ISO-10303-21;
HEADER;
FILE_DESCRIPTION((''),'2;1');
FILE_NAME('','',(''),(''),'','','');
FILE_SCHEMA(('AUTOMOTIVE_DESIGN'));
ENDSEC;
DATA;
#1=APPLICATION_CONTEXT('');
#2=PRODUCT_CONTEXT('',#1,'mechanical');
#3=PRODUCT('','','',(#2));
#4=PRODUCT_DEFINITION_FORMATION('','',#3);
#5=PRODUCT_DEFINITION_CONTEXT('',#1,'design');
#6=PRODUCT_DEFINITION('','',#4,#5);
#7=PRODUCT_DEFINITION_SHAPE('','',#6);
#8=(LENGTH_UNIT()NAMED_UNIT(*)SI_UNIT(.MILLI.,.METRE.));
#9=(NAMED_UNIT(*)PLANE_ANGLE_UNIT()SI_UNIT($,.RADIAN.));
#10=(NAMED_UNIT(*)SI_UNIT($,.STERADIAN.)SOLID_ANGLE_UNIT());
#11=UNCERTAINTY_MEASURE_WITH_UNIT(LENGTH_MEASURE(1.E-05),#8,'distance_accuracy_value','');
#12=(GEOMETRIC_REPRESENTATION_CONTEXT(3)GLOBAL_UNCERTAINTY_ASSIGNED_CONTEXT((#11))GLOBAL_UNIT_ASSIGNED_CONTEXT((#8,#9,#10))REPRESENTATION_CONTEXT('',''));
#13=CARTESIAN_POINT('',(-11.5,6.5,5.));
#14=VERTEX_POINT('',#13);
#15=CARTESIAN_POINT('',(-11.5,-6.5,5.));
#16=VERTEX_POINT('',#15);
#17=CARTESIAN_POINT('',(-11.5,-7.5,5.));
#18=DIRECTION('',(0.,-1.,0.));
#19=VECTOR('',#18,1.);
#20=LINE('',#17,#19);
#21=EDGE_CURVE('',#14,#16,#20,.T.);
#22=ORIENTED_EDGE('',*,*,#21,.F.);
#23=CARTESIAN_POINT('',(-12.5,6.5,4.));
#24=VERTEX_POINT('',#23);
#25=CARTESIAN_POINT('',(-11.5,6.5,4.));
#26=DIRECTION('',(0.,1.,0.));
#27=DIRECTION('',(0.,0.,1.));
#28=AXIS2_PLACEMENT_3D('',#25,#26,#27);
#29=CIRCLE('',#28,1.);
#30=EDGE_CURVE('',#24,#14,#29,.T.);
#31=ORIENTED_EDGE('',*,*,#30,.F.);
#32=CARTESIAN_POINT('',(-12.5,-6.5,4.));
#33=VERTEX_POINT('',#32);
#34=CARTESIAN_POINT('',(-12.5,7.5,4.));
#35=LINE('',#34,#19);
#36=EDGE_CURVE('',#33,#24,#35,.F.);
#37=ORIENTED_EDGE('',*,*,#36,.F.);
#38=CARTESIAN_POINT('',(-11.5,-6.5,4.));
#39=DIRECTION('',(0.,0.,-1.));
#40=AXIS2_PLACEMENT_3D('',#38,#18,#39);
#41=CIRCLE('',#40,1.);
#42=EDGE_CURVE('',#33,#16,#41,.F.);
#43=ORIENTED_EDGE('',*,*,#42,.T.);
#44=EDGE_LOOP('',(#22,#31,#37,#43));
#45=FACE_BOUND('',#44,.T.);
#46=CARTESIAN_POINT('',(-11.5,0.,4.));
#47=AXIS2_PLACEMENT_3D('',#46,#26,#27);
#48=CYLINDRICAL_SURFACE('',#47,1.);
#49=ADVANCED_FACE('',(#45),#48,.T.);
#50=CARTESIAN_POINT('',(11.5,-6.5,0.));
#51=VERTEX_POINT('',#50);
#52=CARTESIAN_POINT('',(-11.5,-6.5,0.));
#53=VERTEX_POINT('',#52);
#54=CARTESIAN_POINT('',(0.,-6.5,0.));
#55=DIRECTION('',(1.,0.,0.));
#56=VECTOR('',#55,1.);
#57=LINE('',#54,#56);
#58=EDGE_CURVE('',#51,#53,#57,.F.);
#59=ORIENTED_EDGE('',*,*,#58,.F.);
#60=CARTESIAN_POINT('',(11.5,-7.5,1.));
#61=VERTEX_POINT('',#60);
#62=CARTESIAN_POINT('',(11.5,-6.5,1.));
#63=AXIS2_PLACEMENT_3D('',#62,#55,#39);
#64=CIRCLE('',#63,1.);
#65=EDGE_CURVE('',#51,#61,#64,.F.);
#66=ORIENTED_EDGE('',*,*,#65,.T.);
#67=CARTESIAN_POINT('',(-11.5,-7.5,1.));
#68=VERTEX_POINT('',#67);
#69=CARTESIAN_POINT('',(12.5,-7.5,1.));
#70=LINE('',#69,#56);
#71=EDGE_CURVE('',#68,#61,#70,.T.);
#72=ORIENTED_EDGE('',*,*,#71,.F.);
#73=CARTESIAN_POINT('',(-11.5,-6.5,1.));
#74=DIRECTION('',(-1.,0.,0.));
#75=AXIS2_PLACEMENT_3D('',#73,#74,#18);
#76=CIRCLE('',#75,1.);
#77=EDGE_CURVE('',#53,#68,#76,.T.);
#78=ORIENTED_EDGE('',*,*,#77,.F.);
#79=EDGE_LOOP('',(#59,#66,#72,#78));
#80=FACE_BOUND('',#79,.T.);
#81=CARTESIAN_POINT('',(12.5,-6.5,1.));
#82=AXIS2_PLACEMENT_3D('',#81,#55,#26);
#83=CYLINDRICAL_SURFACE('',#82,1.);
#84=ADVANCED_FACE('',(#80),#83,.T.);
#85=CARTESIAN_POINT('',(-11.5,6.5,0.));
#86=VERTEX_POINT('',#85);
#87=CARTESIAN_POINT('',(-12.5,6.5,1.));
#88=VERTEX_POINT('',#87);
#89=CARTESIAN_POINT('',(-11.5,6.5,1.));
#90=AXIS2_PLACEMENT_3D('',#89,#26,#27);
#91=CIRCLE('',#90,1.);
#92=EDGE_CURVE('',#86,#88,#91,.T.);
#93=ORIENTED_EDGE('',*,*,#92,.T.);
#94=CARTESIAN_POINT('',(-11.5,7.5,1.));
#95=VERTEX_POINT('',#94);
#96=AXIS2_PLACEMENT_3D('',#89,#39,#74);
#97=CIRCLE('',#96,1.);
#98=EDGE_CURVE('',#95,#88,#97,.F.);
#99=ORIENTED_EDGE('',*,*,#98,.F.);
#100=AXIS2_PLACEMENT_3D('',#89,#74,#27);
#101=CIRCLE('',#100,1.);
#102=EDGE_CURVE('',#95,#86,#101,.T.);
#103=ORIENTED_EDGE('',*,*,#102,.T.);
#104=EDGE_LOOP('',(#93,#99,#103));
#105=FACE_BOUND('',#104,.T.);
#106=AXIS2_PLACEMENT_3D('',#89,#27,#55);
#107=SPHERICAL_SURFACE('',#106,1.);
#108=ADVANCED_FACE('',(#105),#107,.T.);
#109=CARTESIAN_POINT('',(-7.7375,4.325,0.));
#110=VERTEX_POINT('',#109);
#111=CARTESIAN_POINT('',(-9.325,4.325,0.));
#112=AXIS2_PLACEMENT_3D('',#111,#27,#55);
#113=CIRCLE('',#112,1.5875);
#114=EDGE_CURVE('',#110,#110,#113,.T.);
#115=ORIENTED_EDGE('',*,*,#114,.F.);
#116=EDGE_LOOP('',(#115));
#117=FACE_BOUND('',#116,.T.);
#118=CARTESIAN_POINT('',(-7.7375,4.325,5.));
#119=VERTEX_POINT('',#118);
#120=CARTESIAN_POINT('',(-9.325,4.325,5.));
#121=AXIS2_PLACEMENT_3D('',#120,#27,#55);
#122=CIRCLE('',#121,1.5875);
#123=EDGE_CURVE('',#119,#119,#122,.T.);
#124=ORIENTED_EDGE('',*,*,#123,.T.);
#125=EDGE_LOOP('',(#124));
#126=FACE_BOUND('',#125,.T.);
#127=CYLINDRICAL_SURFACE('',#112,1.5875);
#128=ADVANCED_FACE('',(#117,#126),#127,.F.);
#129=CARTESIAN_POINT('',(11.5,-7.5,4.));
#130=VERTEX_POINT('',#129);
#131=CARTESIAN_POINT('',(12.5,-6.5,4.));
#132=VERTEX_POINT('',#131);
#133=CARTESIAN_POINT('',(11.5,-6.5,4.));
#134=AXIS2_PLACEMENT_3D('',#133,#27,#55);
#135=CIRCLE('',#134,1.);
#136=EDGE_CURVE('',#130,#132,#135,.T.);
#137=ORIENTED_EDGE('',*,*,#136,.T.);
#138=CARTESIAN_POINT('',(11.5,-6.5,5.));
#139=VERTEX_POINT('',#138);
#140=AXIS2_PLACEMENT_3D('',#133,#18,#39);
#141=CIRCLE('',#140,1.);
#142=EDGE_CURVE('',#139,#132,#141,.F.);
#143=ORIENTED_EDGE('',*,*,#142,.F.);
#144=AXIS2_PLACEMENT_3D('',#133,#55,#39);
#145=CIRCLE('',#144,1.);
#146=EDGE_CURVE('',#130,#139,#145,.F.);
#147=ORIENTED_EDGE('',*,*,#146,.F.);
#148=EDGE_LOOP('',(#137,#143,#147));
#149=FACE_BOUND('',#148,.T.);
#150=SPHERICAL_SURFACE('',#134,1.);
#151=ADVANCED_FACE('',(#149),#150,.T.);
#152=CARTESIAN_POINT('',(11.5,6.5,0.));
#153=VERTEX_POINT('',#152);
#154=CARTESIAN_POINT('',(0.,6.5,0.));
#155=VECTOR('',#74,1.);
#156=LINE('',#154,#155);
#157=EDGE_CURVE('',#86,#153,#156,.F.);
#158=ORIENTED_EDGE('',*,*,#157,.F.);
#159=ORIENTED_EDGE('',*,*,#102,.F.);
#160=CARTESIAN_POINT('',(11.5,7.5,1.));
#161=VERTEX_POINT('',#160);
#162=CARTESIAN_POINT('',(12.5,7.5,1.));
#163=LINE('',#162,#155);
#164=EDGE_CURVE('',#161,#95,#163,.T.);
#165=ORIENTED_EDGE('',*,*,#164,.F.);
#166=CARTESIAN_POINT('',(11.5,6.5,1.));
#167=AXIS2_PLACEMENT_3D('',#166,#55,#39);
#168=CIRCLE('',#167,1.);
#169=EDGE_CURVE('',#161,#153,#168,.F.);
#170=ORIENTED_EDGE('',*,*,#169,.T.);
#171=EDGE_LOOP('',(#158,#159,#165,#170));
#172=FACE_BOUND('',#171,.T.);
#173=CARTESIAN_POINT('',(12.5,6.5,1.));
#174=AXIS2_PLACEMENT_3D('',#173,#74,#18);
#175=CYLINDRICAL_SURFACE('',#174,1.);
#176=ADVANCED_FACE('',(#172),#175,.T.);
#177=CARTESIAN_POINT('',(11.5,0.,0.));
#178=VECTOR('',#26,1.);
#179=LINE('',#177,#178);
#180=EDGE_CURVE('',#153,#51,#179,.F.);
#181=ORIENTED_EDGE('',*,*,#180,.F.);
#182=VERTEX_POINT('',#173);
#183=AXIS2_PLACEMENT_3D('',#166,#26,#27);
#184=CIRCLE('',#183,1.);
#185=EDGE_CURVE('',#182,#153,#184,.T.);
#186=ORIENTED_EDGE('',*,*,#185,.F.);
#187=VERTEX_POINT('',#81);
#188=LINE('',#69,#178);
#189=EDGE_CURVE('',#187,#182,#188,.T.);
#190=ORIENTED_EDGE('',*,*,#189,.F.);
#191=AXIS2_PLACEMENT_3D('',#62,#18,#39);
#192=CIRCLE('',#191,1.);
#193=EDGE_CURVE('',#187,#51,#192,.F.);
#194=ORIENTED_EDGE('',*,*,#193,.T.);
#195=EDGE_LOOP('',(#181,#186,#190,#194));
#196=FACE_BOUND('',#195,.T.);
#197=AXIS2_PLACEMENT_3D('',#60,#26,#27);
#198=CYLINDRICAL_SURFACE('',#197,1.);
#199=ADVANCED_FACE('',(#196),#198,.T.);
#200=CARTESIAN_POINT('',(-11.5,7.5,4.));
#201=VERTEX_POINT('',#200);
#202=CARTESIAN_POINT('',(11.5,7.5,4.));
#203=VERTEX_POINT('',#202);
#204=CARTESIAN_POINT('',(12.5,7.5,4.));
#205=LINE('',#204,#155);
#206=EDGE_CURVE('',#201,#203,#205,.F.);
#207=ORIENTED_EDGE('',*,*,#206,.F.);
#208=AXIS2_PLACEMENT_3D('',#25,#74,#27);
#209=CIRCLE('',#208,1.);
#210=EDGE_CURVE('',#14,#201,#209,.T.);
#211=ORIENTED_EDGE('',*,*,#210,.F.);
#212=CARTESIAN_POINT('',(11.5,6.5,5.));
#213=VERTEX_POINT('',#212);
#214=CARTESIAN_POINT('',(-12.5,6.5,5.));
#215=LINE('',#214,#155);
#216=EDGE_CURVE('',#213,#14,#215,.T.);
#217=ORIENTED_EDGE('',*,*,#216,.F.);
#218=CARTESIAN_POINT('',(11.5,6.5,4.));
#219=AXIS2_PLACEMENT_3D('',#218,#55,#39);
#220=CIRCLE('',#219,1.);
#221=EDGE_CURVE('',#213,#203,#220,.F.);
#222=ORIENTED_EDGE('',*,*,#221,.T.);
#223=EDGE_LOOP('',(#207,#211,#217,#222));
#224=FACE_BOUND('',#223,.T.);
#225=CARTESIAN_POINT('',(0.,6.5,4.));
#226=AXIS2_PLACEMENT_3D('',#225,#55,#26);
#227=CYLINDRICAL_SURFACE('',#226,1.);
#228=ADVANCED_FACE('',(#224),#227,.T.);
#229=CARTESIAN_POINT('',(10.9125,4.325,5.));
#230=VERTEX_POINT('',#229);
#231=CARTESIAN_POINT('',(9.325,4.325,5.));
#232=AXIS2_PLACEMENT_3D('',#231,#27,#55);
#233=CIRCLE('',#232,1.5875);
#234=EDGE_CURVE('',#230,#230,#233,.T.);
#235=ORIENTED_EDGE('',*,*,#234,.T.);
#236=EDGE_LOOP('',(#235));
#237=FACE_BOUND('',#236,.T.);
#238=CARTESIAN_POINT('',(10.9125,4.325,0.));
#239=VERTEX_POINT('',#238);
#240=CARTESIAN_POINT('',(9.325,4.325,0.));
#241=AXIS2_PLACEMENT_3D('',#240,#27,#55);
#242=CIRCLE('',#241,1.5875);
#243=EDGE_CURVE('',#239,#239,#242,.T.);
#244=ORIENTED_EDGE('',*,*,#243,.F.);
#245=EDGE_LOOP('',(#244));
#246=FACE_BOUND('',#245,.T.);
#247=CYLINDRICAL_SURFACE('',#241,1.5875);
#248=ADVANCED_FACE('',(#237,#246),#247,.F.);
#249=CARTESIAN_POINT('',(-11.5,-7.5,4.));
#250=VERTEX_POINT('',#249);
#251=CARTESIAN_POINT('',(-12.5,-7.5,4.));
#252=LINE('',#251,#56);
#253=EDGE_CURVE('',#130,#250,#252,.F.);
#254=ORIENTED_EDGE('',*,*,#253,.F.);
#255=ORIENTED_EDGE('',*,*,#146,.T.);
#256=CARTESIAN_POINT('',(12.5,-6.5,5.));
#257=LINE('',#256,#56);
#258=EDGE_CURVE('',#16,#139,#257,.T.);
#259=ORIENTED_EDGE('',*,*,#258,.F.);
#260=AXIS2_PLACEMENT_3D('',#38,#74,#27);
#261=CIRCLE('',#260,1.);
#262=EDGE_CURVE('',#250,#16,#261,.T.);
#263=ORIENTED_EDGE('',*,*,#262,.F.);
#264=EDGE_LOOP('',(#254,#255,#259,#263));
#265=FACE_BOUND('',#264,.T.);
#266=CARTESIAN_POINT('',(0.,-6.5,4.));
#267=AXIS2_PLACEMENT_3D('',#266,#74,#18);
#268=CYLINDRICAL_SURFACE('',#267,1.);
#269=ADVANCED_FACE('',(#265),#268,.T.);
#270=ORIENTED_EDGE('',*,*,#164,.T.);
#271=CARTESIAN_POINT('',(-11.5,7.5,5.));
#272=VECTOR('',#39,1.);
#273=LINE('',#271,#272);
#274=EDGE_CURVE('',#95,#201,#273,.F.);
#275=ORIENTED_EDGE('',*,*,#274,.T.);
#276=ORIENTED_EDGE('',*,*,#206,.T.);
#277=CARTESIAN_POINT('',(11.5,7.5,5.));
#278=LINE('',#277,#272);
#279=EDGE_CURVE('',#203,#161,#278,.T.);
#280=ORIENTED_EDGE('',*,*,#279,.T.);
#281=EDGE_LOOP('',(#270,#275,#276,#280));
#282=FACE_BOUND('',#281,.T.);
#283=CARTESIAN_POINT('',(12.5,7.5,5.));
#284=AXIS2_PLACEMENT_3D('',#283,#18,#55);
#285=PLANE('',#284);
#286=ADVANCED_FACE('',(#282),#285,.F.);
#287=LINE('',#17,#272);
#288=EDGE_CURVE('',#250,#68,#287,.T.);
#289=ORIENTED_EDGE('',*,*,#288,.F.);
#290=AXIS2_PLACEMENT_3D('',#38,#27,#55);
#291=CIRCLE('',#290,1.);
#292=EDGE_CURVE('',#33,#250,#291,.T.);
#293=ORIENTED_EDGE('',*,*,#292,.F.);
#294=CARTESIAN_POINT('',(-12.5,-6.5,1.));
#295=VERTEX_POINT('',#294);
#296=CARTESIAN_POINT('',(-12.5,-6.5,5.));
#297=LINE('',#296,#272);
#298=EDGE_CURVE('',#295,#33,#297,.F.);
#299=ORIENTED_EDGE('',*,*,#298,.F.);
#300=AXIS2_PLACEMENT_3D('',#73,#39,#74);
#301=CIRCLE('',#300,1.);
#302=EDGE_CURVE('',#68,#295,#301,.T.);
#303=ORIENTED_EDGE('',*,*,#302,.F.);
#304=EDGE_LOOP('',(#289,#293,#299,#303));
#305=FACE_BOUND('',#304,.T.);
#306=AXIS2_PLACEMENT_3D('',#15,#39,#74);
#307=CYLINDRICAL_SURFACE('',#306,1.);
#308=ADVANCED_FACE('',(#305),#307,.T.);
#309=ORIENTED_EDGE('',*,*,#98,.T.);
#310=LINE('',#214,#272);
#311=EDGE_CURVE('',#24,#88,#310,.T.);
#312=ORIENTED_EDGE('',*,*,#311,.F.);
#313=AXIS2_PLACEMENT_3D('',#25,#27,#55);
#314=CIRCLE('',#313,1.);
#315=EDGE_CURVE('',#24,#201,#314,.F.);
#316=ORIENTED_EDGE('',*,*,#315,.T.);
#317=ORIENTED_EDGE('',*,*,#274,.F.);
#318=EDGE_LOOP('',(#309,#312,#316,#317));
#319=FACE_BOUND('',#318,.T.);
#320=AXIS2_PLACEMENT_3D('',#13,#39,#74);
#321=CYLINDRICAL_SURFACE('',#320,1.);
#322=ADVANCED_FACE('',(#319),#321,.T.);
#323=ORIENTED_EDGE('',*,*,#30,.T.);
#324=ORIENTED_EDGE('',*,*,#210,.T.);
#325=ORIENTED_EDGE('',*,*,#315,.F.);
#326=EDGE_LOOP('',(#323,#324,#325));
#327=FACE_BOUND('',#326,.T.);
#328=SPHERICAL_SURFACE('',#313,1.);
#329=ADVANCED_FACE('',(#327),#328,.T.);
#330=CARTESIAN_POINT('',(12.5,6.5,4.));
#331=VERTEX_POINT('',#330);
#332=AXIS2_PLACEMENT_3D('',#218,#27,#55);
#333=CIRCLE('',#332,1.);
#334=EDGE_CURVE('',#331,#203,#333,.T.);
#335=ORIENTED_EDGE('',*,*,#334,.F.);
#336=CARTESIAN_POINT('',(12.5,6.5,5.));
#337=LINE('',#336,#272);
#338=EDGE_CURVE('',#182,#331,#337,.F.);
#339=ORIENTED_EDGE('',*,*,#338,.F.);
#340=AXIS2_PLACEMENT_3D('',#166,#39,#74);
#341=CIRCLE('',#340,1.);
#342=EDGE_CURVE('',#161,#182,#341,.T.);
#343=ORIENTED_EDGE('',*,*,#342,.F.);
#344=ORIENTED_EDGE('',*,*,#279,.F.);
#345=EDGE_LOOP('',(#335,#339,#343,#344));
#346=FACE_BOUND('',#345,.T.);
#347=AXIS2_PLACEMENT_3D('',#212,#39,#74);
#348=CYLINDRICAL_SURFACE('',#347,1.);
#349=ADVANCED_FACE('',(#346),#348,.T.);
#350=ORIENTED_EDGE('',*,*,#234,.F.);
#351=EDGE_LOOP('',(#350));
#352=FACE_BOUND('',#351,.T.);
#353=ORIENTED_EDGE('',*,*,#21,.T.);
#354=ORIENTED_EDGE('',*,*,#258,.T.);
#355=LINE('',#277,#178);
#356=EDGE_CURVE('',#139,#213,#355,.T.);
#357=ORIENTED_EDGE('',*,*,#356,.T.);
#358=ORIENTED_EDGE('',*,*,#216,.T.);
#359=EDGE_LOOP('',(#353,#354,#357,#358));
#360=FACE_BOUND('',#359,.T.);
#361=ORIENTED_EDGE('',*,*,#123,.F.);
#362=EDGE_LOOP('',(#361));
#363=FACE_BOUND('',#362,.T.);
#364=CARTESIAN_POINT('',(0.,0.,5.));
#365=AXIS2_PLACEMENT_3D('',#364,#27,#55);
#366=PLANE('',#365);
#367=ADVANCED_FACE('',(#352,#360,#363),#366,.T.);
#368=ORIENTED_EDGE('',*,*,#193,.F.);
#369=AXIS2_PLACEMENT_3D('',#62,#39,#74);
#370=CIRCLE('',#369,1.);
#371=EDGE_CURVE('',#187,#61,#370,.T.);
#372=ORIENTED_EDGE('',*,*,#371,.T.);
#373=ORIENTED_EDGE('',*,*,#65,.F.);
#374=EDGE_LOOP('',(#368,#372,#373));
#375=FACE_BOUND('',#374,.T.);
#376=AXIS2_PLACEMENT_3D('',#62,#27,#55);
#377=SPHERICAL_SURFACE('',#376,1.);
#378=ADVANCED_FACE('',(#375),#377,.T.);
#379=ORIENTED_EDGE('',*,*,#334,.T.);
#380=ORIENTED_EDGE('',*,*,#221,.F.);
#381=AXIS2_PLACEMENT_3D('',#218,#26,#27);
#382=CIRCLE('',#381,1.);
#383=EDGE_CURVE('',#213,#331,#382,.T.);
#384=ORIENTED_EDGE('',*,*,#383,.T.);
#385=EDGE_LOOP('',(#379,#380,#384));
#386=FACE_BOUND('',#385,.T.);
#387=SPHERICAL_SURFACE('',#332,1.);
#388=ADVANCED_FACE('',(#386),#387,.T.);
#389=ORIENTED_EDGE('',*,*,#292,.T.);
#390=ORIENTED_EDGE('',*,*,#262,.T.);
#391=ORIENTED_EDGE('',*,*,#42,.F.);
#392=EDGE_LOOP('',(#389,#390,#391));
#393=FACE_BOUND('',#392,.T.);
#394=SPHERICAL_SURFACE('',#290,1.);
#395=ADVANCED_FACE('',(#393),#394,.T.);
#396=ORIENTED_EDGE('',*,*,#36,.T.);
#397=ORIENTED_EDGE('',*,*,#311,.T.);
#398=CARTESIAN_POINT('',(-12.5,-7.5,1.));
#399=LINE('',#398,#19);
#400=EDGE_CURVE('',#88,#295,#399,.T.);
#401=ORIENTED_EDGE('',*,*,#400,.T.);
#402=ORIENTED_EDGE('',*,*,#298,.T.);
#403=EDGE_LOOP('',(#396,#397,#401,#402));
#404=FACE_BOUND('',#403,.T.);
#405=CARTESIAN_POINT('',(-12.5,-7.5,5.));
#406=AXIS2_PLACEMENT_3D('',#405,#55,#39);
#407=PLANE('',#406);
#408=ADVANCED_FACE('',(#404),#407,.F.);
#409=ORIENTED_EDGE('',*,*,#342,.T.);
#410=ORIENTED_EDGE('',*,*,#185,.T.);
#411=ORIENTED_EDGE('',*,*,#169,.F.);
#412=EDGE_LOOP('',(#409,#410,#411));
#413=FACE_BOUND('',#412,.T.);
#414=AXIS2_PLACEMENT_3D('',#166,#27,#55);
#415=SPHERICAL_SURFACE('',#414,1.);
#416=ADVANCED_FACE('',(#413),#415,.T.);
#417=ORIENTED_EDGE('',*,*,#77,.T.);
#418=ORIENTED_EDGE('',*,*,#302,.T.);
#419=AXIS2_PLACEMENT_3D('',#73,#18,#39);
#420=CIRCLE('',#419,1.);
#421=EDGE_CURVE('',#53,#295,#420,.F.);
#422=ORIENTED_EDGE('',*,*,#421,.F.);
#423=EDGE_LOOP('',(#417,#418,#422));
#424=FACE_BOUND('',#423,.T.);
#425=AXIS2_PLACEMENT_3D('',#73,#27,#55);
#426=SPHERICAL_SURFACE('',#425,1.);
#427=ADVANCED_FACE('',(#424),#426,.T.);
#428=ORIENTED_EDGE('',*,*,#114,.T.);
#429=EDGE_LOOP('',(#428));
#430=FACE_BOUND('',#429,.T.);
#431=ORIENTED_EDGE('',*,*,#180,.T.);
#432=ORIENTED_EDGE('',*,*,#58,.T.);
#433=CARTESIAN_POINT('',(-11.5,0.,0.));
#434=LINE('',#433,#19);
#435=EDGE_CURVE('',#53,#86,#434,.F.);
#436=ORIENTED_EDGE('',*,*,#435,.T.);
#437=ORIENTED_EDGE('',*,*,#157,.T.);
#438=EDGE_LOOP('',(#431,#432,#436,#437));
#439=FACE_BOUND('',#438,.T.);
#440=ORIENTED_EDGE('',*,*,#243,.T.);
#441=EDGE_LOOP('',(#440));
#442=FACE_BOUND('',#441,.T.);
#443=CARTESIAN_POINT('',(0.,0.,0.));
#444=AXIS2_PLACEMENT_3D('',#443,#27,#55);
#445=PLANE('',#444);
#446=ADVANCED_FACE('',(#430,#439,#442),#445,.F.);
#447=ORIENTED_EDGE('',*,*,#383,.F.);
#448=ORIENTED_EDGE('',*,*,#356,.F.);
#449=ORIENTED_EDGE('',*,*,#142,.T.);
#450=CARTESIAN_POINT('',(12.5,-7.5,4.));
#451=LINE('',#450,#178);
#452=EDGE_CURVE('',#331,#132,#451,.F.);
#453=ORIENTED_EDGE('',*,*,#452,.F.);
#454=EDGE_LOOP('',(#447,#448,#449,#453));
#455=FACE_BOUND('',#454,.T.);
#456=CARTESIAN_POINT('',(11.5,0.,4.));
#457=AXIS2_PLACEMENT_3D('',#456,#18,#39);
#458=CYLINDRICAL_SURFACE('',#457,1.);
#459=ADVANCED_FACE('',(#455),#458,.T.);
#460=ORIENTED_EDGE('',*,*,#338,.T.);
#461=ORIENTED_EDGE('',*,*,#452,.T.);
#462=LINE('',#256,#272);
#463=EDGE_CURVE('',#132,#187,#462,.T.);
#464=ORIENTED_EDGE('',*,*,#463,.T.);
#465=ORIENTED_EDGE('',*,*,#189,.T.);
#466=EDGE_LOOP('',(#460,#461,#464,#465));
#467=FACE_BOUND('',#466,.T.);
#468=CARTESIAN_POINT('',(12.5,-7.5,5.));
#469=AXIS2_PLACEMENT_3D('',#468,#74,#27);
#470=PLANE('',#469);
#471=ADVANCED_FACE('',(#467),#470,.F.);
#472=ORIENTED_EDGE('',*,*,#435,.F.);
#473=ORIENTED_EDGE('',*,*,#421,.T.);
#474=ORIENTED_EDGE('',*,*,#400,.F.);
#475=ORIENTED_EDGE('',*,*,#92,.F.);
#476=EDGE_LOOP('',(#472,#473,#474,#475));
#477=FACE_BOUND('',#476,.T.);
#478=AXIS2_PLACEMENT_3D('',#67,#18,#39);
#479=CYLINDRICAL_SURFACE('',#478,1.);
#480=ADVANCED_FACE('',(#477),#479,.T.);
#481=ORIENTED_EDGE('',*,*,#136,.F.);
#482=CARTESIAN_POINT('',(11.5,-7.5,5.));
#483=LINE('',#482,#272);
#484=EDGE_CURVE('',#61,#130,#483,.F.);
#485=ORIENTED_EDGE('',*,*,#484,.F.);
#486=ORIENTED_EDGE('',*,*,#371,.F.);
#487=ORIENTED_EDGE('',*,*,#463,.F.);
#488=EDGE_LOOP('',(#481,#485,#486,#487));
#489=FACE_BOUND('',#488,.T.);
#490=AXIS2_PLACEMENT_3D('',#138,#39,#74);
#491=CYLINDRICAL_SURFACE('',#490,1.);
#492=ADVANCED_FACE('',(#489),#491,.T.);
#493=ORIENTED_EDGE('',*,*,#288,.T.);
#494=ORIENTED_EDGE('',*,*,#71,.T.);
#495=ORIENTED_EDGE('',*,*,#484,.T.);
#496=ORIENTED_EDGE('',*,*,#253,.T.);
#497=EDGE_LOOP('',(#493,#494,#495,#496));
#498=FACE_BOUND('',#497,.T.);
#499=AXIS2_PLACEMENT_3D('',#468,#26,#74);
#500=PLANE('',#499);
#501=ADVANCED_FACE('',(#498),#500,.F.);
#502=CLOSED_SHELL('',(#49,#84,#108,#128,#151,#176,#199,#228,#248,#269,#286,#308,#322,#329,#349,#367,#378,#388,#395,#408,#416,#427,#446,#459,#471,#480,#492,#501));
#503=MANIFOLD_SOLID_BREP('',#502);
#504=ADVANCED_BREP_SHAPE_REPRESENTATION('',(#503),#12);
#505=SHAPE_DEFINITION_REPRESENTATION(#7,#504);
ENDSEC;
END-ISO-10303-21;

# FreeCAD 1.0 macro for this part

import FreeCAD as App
import Part
import Sketcher


def edges_at(feature, points):
    """Names of the edges that pass closest to the given points."""
    edges = feature.Shape.Edges
    near = lambda p: min(range(len(edges)), key=lambda i: edges[i].distToShape(Part.Vertex(*p))[0])
    return sorted({f"Edge{near(p) + 1}" for p in points})

doc = App.newDocument("Part")
body = doc.addObject("PartDesign::Body", "Body")

# Sketch on XY plane
sketch1 = doc.addObject("Sketcher::SketchObject", "Sketch")
body.addObject(sketch1)
sketch1.AttachmentSupport = (doc.XY_Plane, [""])
sketch1.MapMode = "FlatFace"
sketch1.addGeometry([
    Part.LineSegment(App.Vector(-12, 8, 0), App.Vector(-12, -8, 0)),
    Part.LineSegment(App.Vector(-12, -8, 0), App.Vector(12, -8, 0)),
    Part.LineSegment(App.Vector(12, -8, 0), App.Vector(12, 8, 0)),
    Part.LineSegment(App.Vector(12, 8, 0), App.Vector(-12, 8, 0)),
], False)
sketch1.addConstraint([
    Sketcher.Constraint("Coincident", 0, 2, 1, 1),
    Sketcher.Constraint("Coincident", 1, 2, 2, 1),
    Sketcher.Constraint("Coincident", 2, 2, 3, 1),
    Sketcher.Constraint("Coincident", 3, 2, 0, 1),
    Sketcher.Constraint("Vertical", 0),
    Sketcher.Constraint("Horizontal", 1),
    Sketcher.Constraint("Vertical", 2),
    Sketcher.Constraint("Horizontal", 3),
    Sketcher.Constraint("Symmetric", 0, 2, 2, 2, -1, 1),
    Sketcher.Constraint("DistanceX", 1, 1, 1, 2, 25.0),
    Sketcher.Constraint("DistanceY", 0, 2, 0, 1, 15.0),
])
pad1 = doc.addObject("PartDesign::Pad", "Pad")
body.addObject(pad1)
pad1.Profile = sketch1
pad1.Length = 5

# Sketch on XY plane
sketch2 = doc.addObject("Sketcher::SketchObject", "Sketch001")
body.addObject(sketch2)
sketch2.AttachmentSupport = (doc.XY_Plane, [""])
sketch2.MapMode = "FlatFace"
sketch2.AttachmentOffset = App.Placement(App.Vector(0, 0, 5), App.Rotation())
sketch2.addGeometry([
    Part.Circle(App.Vector(-9.3, 4.3, 0), App.Vector(0, 0, 1), 1.6),
    Part.Circle(App.Vector(9.3, 4.3, 0), App.Vector(0, 0, 1), 1.6),
], False)
sketch2.addConstraint([
    Sketcher.Constraint("Equal", 0, 1),
    Sketcher.Constraint("Symmetric", 0, 3, 1, 3, -2),
    Sketcher.Constraint("Diameter", 0, 3.175),
    Sketcher.Constraint("DistanceX", 0, 3, 1, 3, 18.65),
    Sketcher.Constraint("DistanceY", -1, 1, 0, 3, 4.325),
])
pocket1 = doc.addObject("PartDesign::Pocket", "Pocket")
body.addObject(pocket1)
pocket1.Profile = sketch2
pocket1.Type = "ThroughAll"
doc.recompute()

fillet = doc.addObject("PartDesign::Fillet", "Fillet")
body.addObject(fillet)
fillet.Base = (pocket1, edges_at(pocket1, [
    (12.5, 0, 5),
    (0, 7.5, 5),
    (-12.5, 0, 5),
    (0, 7.5, 0),
    (12.5, 0, 0),
    (0, -7.5, 0),
    (-12.5, 0, 0),
    (0, -7.5, 5),
    (-12.5, 7.5, 2.5),
    (12.5, 7.5, 2.5),
    (12.5, -7.5, 2.5),
    (-12.5, -7.5, 2.5),
]))
fillet.Radius = 1

doc.recompute()
